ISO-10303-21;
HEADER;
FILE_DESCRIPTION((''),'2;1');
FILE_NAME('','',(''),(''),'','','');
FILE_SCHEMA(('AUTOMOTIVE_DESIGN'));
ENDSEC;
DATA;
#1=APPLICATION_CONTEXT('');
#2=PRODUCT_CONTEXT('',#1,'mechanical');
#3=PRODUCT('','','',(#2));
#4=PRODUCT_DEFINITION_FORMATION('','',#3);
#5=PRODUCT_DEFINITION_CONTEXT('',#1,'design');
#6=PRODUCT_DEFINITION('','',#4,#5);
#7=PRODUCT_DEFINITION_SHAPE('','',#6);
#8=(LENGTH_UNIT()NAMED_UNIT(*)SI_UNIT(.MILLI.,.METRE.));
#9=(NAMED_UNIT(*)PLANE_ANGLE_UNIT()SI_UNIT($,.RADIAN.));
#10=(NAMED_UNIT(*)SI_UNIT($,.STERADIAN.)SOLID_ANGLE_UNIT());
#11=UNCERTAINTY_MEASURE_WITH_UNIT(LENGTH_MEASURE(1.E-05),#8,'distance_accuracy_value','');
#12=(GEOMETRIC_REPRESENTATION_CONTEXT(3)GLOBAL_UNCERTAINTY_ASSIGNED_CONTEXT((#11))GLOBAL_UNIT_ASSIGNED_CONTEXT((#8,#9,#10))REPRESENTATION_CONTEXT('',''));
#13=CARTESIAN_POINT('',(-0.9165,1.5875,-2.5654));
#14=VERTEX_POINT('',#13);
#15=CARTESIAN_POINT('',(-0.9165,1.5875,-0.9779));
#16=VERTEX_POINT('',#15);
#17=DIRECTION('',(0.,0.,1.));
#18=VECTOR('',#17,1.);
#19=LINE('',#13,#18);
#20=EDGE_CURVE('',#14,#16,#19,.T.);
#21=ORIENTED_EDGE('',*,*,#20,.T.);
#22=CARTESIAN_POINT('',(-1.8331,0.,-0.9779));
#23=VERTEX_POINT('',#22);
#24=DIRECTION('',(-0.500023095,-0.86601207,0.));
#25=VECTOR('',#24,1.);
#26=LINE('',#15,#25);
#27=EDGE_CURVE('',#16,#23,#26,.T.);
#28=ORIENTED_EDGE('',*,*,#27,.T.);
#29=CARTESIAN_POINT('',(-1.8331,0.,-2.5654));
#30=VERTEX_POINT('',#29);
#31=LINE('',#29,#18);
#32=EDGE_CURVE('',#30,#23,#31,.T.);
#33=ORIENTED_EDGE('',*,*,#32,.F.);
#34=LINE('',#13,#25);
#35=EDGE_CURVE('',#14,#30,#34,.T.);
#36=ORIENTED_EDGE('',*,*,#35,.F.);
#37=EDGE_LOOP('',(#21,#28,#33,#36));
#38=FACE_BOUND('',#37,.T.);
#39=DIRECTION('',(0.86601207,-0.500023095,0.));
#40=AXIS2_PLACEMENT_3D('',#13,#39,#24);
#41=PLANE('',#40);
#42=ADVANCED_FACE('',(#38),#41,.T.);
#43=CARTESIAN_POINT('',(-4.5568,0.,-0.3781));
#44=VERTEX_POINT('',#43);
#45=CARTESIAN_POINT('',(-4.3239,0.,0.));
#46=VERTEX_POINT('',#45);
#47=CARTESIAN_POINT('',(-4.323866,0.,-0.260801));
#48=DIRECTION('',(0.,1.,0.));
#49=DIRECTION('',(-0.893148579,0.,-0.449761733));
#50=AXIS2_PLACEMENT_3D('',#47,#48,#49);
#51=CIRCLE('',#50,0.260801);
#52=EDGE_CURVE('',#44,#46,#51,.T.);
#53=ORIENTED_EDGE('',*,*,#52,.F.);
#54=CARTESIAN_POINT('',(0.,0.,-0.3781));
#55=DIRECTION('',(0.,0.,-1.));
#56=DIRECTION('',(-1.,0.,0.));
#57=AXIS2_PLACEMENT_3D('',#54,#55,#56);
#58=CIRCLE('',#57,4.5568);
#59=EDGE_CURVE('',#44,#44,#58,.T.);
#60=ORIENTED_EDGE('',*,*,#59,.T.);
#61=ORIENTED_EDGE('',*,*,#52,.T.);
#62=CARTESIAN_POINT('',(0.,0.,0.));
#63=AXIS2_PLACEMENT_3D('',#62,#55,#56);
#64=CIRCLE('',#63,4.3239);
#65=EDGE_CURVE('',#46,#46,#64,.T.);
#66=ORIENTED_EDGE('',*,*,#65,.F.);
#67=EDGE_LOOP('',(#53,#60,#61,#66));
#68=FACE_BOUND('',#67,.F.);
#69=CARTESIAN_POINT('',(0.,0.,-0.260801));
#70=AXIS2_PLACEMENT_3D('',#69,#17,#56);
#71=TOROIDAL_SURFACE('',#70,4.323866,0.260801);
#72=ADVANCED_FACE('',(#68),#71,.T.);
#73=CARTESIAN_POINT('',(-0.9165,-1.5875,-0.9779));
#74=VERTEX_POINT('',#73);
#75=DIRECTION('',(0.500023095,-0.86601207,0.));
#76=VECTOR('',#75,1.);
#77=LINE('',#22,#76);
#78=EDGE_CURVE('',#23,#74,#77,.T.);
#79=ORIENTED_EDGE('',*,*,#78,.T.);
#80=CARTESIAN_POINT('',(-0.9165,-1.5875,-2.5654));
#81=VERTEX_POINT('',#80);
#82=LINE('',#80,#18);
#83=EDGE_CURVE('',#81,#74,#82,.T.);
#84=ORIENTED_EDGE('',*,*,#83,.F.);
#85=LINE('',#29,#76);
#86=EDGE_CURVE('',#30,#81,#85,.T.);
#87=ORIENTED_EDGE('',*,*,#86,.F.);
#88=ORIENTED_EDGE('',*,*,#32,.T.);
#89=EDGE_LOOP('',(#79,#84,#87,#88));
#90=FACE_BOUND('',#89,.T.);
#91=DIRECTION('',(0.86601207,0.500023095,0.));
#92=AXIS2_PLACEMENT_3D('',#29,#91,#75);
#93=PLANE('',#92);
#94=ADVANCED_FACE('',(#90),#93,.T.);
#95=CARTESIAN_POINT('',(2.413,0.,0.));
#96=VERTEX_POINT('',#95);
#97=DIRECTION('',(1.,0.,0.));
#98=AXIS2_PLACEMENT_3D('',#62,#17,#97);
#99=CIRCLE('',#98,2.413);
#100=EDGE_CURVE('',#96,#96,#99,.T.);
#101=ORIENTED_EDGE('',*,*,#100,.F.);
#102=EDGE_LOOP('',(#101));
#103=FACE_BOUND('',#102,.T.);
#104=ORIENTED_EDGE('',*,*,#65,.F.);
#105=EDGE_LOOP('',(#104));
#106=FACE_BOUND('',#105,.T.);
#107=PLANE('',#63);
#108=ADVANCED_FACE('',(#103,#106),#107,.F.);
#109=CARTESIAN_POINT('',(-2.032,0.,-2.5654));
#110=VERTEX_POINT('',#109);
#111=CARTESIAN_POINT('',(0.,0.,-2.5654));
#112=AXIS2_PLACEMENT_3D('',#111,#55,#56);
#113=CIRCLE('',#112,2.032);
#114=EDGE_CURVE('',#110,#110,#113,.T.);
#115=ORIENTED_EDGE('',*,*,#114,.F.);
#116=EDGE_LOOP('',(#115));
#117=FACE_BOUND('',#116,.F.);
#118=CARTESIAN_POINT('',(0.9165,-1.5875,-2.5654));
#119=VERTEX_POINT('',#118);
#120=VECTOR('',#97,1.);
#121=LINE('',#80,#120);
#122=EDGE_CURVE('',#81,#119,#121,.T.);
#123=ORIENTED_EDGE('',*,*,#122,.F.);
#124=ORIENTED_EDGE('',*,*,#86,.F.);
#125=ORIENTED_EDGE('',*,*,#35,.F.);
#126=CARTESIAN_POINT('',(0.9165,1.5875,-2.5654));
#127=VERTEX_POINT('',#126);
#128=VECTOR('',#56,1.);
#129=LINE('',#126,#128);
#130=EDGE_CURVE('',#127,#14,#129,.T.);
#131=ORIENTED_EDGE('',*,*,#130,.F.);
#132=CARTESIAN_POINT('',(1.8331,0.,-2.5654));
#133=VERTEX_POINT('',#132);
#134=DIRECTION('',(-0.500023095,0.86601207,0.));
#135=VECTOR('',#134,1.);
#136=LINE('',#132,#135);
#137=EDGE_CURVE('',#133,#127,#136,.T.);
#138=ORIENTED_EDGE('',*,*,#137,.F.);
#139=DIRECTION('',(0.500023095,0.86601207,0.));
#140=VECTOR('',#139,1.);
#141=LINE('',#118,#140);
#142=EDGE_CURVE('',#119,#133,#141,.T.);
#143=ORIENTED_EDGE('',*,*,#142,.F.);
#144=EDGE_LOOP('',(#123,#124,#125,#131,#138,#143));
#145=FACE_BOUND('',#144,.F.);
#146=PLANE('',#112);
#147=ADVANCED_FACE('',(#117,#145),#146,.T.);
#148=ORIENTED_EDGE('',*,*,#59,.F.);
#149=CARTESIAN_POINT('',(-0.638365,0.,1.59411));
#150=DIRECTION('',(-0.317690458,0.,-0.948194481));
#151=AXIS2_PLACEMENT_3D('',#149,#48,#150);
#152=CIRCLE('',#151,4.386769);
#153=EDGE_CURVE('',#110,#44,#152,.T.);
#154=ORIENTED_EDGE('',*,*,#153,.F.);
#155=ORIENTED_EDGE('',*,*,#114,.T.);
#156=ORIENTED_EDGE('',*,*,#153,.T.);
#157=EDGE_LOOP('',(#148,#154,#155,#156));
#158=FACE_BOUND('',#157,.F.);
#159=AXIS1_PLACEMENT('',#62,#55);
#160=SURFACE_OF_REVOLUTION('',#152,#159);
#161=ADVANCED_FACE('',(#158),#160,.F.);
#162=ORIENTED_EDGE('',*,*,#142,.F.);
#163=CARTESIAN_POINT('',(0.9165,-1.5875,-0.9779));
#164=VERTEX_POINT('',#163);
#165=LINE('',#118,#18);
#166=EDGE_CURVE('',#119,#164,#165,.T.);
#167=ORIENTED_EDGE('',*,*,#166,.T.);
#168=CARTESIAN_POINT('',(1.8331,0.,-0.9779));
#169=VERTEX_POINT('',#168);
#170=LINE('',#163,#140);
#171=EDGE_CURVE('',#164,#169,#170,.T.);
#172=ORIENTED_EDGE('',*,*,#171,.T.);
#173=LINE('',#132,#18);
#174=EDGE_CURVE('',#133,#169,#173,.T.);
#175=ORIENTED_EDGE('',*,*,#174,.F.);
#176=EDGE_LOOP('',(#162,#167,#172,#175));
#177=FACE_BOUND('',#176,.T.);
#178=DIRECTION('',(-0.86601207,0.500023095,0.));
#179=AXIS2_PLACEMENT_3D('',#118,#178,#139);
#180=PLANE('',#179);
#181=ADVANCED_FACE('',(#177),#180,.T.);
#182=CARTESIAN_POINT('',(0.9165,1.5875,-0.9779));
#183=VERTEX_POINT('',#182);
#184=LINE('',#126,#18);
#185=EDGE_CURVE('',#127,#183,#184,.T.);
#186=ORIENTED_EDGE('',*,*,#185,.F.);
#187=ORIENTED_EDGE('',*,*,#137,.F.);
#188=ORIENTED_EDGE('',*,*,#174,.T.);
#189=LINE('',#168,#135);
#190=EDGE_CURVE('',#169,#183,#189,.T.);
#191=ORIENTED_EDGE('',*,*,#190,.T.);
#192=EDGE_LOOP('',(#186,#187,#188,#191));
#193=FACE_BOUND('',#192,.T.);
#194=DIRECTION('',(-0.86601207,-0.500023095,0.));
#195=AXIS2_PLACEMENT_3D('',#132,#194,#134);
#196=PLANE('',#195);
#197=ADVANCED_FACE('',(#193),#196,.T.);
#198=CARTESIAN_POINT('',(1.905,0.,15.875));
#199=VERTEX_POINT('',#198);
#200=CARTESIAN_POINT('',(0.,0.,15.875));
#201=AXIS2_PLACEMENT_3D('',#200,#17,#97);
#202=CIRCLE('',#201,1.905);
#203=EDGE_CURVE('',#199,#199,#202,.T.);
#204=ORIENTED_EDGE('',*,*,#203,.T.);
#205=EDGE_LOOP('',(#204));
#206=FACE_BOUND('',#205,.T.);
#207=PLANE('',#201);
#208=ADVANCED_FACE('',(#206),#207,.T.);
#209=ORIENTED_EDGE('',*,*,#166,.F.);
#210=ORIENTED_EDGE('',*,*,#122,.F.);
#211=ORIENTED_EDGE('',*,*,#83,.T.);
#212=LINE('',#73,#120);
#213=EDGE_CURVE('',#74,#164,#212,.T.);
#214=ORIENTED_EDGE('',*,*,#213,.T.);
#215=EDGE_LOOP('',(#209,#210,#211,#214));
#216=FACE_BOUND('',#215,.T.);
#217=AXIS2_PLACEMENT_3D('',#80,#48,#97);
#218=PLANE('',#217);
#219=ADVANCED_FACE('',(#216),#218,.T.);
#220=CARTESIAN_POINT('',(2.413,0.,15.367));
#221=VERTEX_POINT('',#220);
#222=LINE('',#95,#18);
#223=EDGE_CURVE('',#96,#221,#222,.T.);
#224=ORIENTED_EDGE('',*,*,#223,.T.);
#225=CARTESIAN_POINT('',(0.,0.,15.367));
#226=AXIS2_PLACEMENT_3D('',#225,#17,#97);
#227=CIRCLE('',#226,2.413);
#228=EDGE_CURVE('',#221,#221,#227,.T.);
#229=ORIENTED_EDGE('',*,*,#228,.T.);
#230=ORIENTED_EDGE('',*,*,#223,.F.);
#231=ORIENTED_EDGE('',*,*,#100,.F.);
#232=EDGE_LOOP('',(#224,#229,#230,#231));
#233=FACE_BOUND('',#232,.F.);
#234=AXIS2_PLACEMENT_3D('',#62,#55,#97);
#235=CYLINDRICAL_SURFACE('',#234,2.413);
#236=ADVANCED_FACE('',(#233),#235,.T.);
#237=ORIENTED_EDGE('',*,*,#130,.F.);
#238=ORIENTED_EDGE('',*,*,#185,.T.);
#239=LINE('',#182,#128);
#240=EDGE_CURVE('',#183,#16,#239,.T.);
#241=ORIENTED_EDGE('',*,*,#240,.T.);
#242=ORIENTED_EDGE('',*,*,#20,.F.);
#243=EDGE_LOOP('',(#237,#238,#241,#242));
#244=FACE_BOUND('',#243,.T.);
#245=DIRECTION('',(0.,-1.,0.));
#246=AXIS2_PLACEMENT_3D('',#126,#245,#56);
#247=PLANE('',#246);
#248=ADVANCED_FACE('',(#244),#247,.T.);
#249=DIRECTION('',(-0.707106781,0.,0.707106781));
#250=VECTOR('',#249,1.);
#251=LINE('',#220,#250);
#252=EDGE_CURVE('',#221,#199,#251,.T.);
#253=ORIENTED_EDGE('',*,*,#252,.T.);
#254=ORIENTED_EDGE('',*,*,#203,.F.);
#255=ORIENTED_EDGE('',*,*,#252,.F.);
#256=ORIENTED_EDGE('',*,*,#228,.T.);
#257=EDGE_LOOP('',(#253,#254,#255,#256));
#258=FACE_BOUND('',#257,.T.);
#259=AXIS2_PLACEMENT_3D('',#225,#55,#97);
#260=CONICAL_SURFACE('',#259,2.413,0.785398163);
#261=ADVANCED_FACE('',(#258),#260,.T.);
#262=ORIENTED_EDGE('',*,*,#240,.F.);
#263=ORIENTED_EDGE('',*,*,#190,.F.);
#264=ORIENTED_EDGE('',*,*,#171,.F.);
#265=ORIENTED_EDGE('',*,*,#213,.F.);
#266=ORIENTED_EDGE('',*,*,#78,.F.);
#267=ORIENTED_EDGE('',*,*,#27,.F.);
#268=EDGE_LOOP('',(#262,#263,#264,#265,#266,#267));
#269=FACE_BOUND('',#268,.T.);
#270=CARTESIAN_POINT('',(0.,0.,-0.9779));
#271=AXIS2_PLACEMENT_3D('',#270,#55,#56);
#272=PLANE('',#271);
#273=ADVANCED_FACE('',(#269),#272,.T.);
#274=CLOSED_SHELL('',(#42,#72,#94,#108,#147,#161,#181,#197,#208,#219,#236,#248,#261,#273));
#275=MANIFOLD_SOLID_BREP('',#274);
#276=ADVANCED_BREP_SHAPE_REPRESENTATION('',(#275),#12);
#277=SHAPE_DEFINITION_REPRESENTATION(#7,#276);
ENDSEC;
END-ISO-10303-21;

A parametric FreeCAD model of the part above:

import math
import FreeCAD as App
import Part
import Sketcher
from FreeCAD import Vector
Q = App.Units.Quantity


def edges_at(feature, points):
    """Names of the edges that pass closest to the given points."""
    edges = feature.Shape.Edges
    near = lambda p: min(range(len(edges)), key=lambda i: edges[i].distToShape(Part.Vertex(*p))[0])
    return sorted({f"Edge{near(p) + 1}" for p in points})

doc = App.newDocument("Part")
body = doc.addObject("PartDesign::Body", "Body")

sketch1 = body.newObject("Sketcher::SketchObject", "Sketch")
sketch1.AttachmentSupport = (doc.getObject("XY_Plane"), [""])
sketch1.MapMode = "FlatFace"
sketch1.addGeometry(Part.Circle(Vector(0, 0, 0), Vector(0, 0, 1), 2.4), False)
sketch1.addConstraint(Sketcher.Constraint("Coincident", 0, 3, -1, 1))
sketch1.addConstraint(Sketcher.Constraint("Diameter", 0, Q("0.19 in")))
pad1 = body.newObject("PartDesign::Pad", "Pad")
pad1.Profile = sketch1
pad1.Length = Q("0.625 in")

sketch2 = body.newObject("Sketcher::SketchObject", "Sketch001")
sketch2.AttachmentSupport = (doc.getObject("XZ_Plane"), [""])
sketch2.MapMode = "FlatFace"
sketch2.addGeometry(Part.LineSegment(Vector(-4.32, 0, 0), Vector(0, 0, 0)), False)
sketch2.addGeometry(Part.LineSegment(Vector(0, 0, 0), Vector(0, -2.57, 0)), False)
sketch2.addGeometry(Part.LineSegment(Vector(0, -2.57, 0), Vector(-2.03, -2.57, 0)), False)
sketch2.addGeometry(Part.ArcOfCircle(Part.Circle(Vector(-0.64, 1.59, 0), Vector(0, 0, 1), 4.39), math.radians(-153), math.radians(-109)), False)
sketch2.addGeometry(Part.ArcOfCircle(Part.Circle(Vector(-4.32, -0.26, 0), Vector(0, 0, 1), 0.26), math.radians(90), math.radians(207)), False)
sketch2.addConstraint(Sketcher.Constraint("Coincident", 0, 2, 1, 1))
sketch2.addConstraint(Sketcher.Constraint("Coincident", 1, 2, 2, 1))
sketch2.addConstraint(Sketcher.Constraint("Coincident", 2, 2, 3, 2))
sketch2.addConstraint(Sketcher.Constraint("Tangent", 3, 1, 4, 2))
sketch2.addConstraint(Sketcher.Constraint("Tangent", 4, 1, 0, 1))
sketch2.addConstraint(Sketcher.Constraint("Horizontal", 0))
sketch2.addConstraint(Sketcher.Constraint("Vertical", 1))
sketch2.addConstraint(Sketcher.Constraint("Horizontal", 2))
sketch2.addConstraint(Sketcher.Constraint("Coincident", 0, 2, -1, 1))
sketch2.addConstraint(Sketcher.Constraint("DistanceX", 2, 2, 2, 1, Q("0.08 in")))
sketch2.addConstraint(Sketcher.Constraint("DistanceY", 1, 2, 1, 1, Q("0.101 in")))
sketch2.addConstraint(Sketcher.Constraint("Radius", 3, 4.387))
sketch2.addConstraint(Sketcher.Constraint("Radius", 4, 0.2608))
sketch2.addConstraint(Sketcher.Constraint("DistanceX", 0, 1, 0, 2, 4.324))
revolution = body.newObject("PartDesign::Revolution", "Revolution")
revolution.Profile = sketch2
revolution.ReferenceAxis = (sketch2, ["V_Axis"])
revolution.Angle = 360

sketch3 = body.newObject("Sketcher::SketchObject", "Sketch002")
sketch3.AttachmentSupport = (doc.getObject("XY_Plane"), [""])
sketch3.MapMode = "FlatFace"
sketch3.AttachmentOffset = App.Placement(Vector(0, 0, -0.101 * 25.4), App.Rotation())
sketch3.addGeometry(Part.LineSegment(Vector(-0.9, 1.6, 0), Vector(0.9, 1.6, 0)), False)
sketch3.addGeometry(Part.LineSegment(Vector(0.9, 1.6, 0), Vector(1.8, 0, 0)), False)
sketch3.addGeometry(Part.LineSegment(Vector(1.8, 0, 0), Vector(0.9, -1.6, 0)), False)
sketch3.addGeometry(Part.LineSegment(Vector(0.9, -1.6, 0), Vector(-0.9, -1.6, 0)), False)
sketch3.addGeometry(Part.LineSegment(Vector(-0.9, -1.6, 0), Vector(-1.8, 0, 0)), False)
sketch3.addGeometry(Part.LineSegment(Vector(-1.8, 0, 0), Vector(-0.9, 1.6, 0)), False)
sketch3.addConstraint(Sketcher.Constraint("Coincident", 0, 2, 1, 1))
sketch3.addConstraint(Sketcher.Constraint("Coincident", 1, 2, 2, 1))
sketch3.addConstraint(Sketcher.Constraint("Coincident", 2, 2, 3, 1))
sketch3.addConstraint(Sketcher.Constraint("Coincident", 3, 2, 4, 1))
sketch3.addConstraint(Sketcher.Constraint("Coincident", 4, 2, 5, 1))
sketch3.addConstraint(Sketcher.Constraint("Coincident", 5, 2, 0, 1))
sketch3.addConstraint(Sketcher.Constraint("Horizontal", 0))
sketch3.addConstraint(Sketcher.Constraint("Horizontal", 3))
sketch3.addConstraint(Sketcher.Constraint("Symmetric", 0, 2, 3, 2, -1, 1))
sketch3.addConstraint(Sketcher.Constraint("Symmetric", 1, 2, 4, 2, -1, 1))
sketch3.addConstraint(Sketcher.Constraint("PointOnObject", 1, 2, -1))
sketch3.addConstraint(Sketcher.Constraint("Parallel", 2, 5))
sketch3.addConstraint(Sketcher.Constraint("Vertical", 0, 2, 2, 2))
sketch3.addConstraint(Sketcher.Constraint("DistanceY", 2, 2, 0, 2, Q("0.125 in")))
sketch3.addConstraint(Sketcher.Constraint("DistanceX", 0, 1, 0, 2, 1.833))
sketch3.addConstraint(Sketcher.Constraint("Distance", 1, 1.833))
pocket1 = body.newObject("PartDesign::Pocket", "Pocket")
pocket1.Profile = sketch3
pocket1.Length = Q("0.0625 in")
pocket1.Reversed = True
doc.recompute()

chamfer = body.newObject("PartDesign::Chamfer", "Chamfer")
chamfer.Base = (pocket1, edges_at(pocket1, [(-2.413, 0, 15.875)]))
chamfer.Size = Q("0.02 in")

doc.recompute()
